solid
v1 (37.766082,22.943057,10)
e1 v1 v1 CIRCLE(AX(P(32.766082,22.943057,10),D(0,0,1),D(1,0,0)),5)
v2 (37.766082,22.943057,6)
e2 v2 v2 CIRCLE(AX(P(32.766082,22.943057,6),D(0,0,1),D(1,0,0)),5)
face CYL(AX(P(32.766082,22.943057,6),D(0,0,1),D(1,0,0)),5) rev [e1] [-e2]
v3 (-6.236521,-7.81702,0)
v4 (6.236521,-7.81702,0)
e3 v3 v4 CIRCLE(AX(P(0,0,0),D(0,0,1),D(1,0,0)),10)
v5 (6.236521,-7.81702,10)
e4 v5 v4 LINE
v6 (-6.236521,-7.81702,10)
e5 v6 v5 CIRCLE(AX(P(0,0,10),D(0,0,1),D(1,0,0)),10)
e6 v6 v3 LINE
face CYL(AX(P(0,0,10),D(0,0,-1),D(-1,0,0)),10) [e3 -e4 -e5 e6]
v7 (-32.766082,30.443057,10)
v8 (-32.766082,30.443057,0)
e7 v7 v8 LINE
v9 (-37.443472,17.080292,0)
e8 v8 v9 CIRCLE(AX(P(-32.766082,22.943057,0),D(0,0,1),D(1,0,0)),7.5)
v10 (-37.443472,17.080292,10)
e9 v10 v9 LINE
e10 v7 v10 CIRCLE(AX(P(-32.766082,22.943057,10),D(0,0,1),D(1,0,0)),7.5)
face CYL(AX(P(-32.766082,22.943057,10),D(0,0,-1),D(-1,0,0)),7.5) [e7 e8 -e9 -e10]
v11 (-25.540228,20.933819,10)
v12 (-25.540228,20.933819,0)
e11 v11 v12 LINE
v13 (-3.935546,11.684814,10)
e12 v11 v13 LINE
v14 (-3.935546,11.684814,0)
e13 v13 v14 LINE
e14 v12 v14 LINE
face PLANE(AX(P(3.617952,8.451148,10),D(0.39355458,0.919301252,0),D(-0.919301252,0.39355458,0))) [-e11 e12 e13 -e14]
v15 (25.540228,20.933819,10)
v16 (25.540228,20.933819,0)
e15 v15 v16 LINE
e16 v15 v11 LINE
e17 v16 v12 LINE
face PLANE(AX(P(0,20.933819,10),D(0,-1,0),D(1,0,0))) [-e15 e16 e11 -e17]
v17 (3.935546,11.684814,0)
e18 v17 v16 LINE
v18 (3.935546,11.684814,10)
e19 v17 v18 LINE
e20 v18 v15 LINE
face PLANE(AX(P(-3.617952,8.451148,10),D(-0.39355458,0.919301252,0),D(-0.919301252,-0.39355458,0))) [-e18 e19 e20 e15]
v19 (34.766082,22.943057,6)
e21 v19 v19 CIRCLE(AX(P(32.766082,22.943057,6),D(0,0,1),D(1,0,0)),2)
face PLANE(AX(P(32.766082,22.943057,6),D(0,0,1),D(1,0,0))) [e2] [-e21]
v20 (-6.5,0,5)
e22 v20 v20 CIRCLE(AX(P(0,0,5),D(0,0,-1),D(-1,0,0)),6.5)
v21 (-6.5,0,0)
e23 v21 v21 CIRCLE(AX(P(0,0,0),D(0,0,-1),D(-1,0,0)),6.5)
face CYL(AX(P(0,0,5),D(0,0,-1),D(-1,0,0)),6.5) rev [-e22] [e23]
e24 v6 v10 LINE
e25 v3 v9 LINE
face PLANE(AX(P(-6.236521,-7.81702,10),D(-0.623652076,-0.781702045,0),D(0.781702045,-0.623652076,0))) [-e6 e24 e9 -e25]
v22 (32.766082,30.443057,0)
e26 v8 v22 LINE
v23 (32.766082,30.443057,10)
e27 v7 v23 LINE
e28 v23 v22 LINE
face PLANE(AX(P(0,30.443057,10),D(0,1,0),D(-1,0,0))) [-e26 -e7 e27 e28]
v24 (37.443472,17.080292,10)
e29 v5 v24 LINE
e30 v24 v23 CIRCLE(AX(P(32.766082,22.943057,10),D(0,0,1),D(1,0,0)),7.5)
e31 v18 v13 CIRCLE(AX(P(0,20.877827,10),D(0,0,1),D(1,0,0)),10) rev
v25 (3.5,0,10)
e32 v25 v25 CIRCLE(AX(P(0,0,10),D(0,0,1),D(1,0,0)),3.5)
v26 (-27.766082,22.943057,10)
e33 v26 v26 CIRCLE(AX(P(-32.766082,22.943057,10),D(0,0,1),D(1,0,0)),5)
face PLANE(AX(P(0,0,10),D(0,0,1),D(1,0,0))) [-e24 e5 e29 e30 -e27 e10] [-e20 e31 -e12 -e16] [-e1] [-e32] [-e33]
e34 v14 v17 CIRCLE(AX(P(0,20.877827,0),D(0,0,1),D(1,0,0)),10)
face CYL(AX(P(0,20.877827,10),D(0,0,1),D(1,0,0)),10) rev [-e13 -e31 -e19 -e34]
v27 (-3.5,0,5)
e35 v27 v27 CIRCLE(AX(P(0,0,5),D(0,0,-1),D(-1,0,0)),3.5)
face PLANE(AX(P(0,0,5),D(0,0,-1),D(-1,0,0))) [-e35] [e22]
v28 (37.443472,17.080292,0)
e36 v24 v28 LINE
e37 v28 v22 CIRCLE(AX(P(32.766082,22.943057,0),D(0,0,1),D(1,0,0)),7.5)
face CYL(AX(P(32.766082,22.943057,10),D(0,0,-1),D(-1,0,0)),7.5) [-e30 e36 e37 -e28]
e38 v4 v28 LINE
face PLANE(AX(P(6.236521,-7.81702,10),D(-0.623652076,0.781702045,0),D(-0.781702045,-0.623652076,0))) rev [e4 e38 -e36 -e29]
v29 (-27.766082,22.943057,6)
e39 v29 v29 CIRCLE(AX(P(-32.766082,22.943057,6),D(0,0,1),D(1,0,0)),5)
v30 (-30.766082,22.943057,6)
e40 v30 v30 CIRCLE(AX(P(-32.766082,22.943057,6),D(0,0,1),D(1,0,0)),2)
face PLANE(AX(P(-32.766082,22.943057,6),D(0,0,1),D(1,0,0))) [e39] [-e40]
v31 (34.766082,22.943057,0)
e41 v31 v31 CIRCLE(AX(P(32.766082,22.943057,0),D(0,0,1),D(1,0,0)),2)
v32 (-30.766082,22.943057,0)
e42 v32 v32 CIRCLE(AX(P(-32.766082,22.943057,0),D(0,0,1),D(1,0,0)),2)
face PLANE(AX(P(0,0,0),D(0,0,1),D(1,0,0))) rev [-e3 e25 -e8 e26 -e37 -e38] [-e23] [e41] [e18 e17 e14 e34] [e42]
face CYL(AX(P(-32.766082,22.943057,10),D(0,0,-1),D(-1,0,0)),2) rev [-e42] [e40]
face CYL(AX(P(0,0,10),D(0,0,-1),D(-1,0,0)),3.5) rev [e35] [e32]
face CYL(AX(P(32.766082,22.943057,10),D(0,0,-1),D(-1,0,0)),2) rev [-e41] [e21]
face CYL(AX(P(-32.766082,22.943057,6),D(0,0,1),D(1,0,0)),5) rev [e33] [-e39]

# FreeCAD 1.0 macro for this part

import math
import FreeCAD as App
import Part
import Sketcher

V = App.Vector


def edges_at(feature, points):
    """Names of the edges that pass closest to the given points."""
    edges = feature.Shape.Edges
    near = lambda p: min(range(len(edges)), key=lambda i: edges[i].distToShape(Part.Vertex(*p))[0])
    return sorted({f"Edge{near(p) + 1}" for p in points})


def add_polygon(sketch, points):
    """Adds a closed chain of lines whose ends are joined by coincident constraints."""
    first, n = sketch.GeometryCount, len(points)
    for a, b in zip(points, points[1:] + points[:1]):
        sketch.addGeometry(Part.LineSegment(App.Vector(*a, 0), App.Vector(*b, 0)), False)
    for i in range(n):
        sketch.addConstraint(Sketcher.Constraint("Coincident", first + i, 2, first + (i + 1) % n, 1))

doc = App.newDocument("Part")
body = doc.addObject("PartDesign::Body", "Body")

# Sketch on XY plane
sketch1 = doc.addObject("Sketcher::SketchObject", "Sketch")
body.addObject(sketch1)
sketch1.AttachmentSupport = (doc.XY_Plane, [""])
sketch1.MapMode = "FlatFace"
sketch1.addGeometry(Part.LineSegment(V(-37.4, 17.1, 0), V(-6.2, -7.8, 0)), False)  # 0
sketch1.addGeometry(Part.ArcOfCircle(Part.Circle(V(0, 0, 0), V(0, 0, 1), 10), math.radians(-129), math.radians(-51)), False)  # 1
sketch1.addGeometry(Part.LineSegment(V(6.2, -7.8, 0), V(37.4, 17.1, 0)), False)  # 2
sketch1.addGeometry(Part.ArcOfCircle(Part.Circle(V(32.8, 22.9, 0), V(0, 0, 1), 7.5), math.radians(-51), math.radians(90)), False)  # 3
sketch1.addGeometry(Part.LineSegment(V(32.8, 30.4, 0), V(-32.8, 30.4, 0)), False)  # 4
sketch1.addGeometry(Part.ArcOfCircle(Part.Circle(V(-32.8, 22.9, 0), V(0, 0, 1), 7.5), math.radians(90), math.radians(231)), False)  # 5
sketch1.addGeometry(Part.Circle(V(0, 0, 0), V(0, 0, 1), 3.5), False)  # 6
sketch1.addGeometry(Part.Circle(V(-32.8, 22.9, 0), V(0, 0, 1), 2), False)  # 7
add_polygon(sketch1, [(-25.5, 20.9), (25.5, 20.9), (0, 10)])  # lines 8-10
sketch1.addGeometry(Part.Circle(V(32.8, 22.9, 0), V(0, 0, 1), 2), False)  # 11
sketch1.addConstraint([
    Sketcher.Constraint("Tangent", 0, 2, 1, 1),
    Sketcher.Constraint("Tangent", 1, 2, 2, 1),
    Sketcher.Constraint("Tangent", 2, 2, 3, 1),
    Sketcher.Constraint("Tangent", 3, 2, 4, 1),
    Sketcher.Constraint("Tangent", 4, 2, 5, 1),
    Sketcher.Constraint("Tangent", 5, 2, 0, 1),
    Sketcher.Constraint("Horizontal", 4),
    Sketcher.Constraint("Horizontal", 8),
    Sketcher.Constraint("Coincident", 1, 3, -1, 1),
    Sketcher.Constraint("Coincident", 6, 3, -1, 1),
    Sketcher.Constraint("Coincident", 7, 3, 5, 3),
    Sketcher.Constraint("Coincident", 11, 3, 3, 3),
    Sketcher.Constraint("Equal", 3, 5),
    Sketcher.Constraint("Equal", 7, 11),
    Sketcher.Constraint("PointOnObject", 9, 2, -2),
    Sketcher.Constraint("Horizontal", 0, 2, 1, 2),
    Sketcher.Constraint("Equal", 9, 10),
    Sketcher.Constraint("Diameter", 6, 7.0),
    Sketcher.Constraint("Diameter", 7, 4.0),
    Sketcher.Constraint("Radius", 1, 10.0),
    Sketcher.Constraint("Radius", 3, 7.5),
    Sketcher.Constraint("DistanceY", -1, 1, 9, 2, 10.0),
    Sketcher.Constraint("Distance", 0, 39.921799),
    Sketcher.Constraint("Distance", 9, 27.782218),
    Sketcher.Constraint("DistanceX", 4, 2, 4, 1, 65.532164),
    Sketcher.Constraint("DistanceX", 8, 1, 8, 2, 51.080456),
])
pad1 = doc.addObject("PartDesign::Pad", "Pad")
body.addObject(pad1)
pad1.Profile = sketch1
pad1.Length = 10
doc.recompute()

fillet = doc.addObject("PartDesign::Fillet", "Fillet")
body.addObject(fillet)
fillet.Base = (pad1, edges_at(pad1, [(0, 10, 5)]))
fillet.Radius = 10

# Sketch on XY plane
sketch2 = doc.addObject("Sketcher::SketchObject", "Sketch001")
body.addObject(sketch2)
sketch2.AttachmentSupport = (doc.XY_Plane, [""])
sketch2.MapMode = "FlatFace"
sketch2.addGeometry(Part.Circle(V(0, 0, 0), V(0, 0, 1), 6), False)
sketch2.addConstraint([
    Sketcher.Constraint("Coincident", 0, 3, -1, 1),
    Sketcher.Constraint("Diameter", 0, 13.0),
])
pocket1 = doc.addObject("PartDesign::Pocket", "Pocket")
body.addObject(pocket1)
pocket1.Profile = sketch2
pocket1.Length = 5
pocket1.Reversed = True

# Sketch on XY plane
sketch3 = doc.addObject("Sketcher::SketchObject", "Sketch002")
body.addObject(sketch3)
sketch3.AttachmentSupport = (doc.XY_Plane, [""])
sketch3.MapMode = "FlatFace"
sketch3.AttachmentOffset = App.Placement(V(0, 0, 10), App.Rotation())
sketch3.addGeometry([
    Part.Circle(V(-33, 23, 0), V(0, 0, 1), 5),
    Part.Circle(V(33, 23, 0), V(0, 0, 1), 5),
], False)
sketch3.addConstraint([
    Sketcher.Constraint("Equal", 0, 1),
    Sketcher.Constraint("Symmetric", 0, 3, 1, 3, -2),
    Sketcher.Constraint("Diameter", 0, 10.0),
    Sketcher.Constraint("DistanceX", 0, 3, -1, 1, 32.766082),
    Sketcher.Constraint("DistanceY", -1, 1, 0, 3, 22.943057),
])
pocket2 = doc.addObject("PartDesign::Pocket", "Pocket001")
body.addObject(pocket2)
pocket2.Profile = sketch3
pocket2.Length = 4

doc.recompute()
